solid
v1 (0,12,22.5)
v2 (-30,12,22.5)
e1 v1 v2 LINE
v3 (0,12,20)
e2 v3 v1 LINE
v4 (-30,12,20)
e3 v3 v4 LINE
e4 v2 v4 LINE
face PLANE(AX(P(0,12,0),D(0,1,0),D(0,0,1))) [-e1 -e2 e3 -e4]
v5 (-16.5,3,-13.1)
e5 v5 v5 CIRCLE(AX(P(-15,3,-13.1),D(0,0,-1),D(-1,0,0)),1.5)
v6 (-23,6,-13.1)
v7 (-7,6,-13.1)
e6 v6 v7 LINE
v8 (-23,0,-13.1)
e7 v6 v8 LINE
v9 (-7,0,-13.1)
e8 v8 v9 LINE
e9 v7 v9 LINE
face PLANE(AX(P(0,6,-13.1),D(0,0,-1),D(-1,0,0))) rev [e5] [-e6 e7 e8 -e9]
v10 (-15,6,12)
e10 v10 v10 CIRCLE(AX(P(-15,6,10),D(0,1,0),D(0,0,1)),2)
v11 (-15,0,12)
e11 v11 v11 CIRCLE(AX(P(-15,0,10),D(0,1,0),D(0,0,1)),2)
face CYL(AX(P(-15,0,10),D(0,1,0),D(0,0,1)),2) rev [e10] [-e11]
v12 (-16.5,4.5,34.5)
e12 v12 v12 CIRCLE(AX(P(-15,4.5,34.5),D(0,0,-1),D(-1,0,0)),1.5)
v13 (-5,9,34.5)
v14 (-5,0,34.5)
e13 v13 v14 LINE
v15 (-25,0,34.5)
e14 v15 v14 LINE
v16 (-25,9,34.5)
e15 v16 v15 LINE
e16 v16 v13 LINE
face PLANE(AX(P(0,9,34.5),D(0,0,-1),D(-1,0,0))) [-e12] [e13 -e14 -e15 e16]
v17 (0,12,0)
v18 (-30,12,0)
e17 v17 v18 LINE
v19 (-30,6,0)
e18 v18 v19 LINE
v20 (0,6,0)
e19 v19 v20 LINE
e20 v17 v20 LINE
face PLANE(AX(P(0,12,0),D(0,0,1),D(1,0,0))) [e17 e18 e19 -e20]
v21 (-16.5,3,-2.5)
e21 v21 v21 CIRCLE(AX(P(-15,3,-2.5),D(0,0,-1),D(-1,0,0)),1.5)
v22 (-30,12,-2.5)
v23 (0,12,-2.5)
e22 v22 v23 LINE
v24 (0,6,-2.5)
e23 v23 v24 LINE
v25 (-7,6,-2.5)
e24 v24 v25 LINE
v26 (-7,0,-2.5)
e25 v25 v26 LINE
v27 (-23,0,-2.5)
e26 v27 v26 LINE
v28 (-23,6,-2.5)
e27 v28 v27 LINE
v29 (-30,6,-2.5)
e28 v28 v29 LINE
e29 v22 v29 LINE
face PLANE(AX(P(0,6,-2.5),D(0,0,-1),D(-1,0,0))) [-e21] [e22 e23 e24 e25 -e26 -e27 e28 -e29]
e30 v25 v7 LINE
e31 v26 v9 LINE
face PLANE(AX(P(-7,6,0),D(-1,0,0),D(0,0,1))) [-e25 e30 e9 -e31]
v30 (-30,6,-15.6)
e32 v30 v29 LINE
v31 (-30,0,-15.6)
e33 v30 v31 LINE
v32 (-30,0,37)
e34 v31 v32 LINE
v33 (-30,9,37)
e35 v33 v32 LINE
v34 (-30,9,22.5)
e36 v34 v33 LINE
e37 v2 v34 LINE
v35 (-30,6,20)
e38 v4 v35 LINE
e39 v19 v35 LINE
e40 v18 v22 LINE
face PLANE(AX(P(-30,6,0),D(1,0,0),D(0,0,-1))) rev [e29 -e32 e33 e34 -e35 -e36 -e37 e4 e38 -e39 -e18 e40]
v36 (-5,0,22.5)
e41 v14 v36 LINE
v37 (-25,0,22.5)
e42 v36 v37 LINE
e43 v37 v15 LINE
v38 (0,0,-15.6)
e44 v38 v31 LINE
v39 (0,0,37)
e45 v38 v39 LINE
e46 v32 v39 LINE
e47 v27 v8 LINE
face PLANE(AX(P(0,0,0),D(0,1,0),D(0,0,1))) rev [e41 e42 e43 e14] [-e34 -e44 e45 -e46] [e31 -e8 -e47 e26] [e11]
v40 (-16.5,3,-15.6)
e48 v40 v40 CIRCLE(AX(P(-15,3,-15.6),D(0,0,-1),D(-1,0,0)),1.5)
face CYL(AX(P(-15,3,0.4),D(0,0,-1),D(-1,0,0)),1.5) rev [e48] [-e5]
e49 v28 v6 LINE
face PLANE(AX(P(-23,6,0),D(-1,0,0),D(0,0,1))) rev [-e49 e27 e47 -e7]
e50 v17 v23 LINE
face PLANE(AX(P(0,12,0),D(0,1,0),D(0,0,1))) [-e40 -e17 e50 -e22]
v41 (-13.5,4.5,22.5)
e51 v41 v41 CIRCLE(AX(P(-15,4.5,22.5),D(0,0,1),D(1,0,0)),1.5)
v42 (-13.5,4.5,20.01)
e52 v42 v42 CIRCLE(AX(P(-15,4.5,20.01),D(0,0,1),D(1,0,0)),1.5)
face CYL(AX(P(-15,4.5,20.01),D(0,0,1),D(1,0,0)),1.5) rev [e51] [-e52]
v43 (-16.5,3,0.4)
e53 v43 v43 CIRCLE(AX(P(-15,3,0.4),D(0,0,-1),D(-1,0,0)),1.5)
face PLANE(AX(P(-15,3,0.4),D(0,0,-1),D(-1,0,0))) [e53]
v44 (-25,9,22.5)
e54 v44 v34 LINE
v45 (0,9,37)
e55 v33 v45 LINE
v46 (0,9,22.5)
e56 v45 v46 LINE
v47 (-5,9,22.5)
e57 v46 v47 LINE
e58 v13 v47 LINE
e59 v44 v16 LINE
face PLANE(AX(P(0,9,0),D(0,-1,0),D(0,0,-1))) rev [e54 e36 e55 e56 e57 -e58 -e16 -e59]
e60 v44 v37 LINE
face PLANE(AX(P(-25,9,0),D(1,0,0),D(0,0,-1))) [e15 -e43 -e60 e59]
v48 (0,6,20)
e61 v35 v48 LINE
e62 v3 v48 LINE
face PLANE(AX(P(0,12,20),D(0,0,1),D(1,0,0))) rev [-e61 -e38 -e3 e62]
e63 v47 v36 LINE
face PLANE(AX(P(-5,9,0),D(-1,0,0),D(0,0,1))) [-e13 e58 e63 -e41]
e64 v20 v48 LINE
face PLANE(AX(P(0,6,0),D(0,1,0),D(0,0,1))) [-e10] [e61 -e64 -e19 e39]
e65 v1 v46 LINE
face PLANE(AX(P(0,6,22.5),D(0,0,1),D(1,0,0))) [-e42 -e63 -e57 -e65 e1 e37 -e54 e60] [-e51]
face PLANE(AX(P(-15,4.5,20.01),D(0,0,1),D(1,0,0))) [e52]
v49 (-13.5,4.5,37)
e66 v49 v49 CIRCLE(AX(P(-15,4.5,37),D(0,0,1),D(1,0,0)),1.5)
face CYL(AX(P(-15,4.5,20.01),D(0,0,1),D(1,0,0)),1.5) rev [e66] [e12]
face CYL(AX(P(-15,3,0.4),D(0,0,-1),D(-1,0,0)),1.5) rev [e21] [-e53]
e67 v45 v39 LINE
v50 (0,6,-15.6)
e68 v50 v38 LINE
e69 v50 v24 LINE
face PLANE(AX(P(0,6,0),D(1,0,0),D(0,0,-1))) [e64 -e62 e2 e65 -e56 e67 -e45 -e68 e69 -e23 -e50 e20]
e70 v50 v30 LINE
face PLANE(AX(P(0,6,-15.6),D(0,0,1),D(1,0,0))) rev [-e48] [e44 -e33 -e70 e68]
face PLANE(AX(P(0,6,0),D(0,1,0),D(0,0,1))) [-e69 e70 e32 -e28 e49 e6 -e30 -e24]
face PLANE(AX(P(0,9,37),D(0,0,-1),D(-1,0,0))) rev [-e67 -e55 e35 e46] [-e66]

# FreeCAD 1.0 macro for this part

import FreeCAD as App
import Part
import Sketcher


def add_polygon(sketch, points):
    """Adds a closed chain of lines whose ends are joined by coincident constraints."""
    first, n = sketch.GeometryCount, len(points)
    for a, b in zip(points, points[1:] + points[:1]):
        sketch.addGeometry(Part.LineSegment(App.Vector(*a, 0), App.Vector(*b, 0)), False)
    for i in range(n):
        sketch.addConstraint(Sketcher.Constraint("Coincident", first + i, 2, first + (i + 1) % n, 1))

doc = App.newDocument("Part")
body = doc.addObject("PartDesign::Body", "Body")

# Sketch on XZ plane
sketch1 = body.newObject("Sketcher::SketchObject", "Sketch")
sketch1.AttachmentSupport = (doc.getObject("XZ_Plane"), [""])
sketch1.MapMode = "FlatFace"
add_polygon(sketch1, [(-30, -16), (-30, 22), (0, 22), (0, -16)])  # lines 0-3
add_polygon(sketch1, [(-7, -2), (-23, -2), (-23, -13), (-7, -13)])  # lines 4-7
sketch1.addConstraint([
    Sketcher.Constraint("Vertical", 0),
    Sketcher.Constraint("Horizontal", 1),
    Sketcher.Constraint("Vertical", 2),
    Sketcher.Constraint("Horizontal", 3),
    Sketcher.Constraint("Horizontal", 4),
    Sketcher.Constraint("Vertical", 5),
    Sketcher.Constraint("Horizontal", 6),
    Sketcher.Constraint("Vertical", 7),
    Sketcher.Constraint("PointOnObject", 1, 2, -2),
    Sketcher.Constraint("DistanceX", 1, 1, 1, 2, 30.0),
    Sketcher.Constraint("DistanceX", 4, 2, 4, 1, 16.0),
    Sketcher.Constraint("DistanceY", 0, 1, 0, 2, 38.1),
    Sketcher.Constraint("DistanceY", 5, 2, 5, 1, 10.6),
    Sketcher.Constraint("DistanceX", 4, 2, -1, 1, 23.0),
    Sketcher.Constraint("DistanceY", 4, 2, 0, 2, 25.0),
    Sketcher.Constraint("DistanceY", -1, 1, 0, 2, 22.5),
])
pad1 = body.newObject("PartDesign::Pad", "Pad")
pad1.Profile = sketch1
pad1.Length = 6
pad1.Reversed = True

# Sketch on XZ plane
sketch2 = body.newObject("Sketcher::SketchObject", "Sketch001")
sketch2.AttachmentSupport = (doc.getObject("XZ_Plane"), [""])
sketch2.MapMode = "FlatFace"
add_polygon(sketch2, [(0, 0), (0, -2.5), (-30, -2.5), (-30, 0)])  # lines 0-3
add_polygon(sketch2, [(-30, 20), (-30, 22.5), (0, 22.5), (0, 20)])  # lines 4-7
sketch2.addConstraint([
    Sketcher.Constraint("Vertical", 0),
    Sketcher.Constraint("Horizontal", 1),
    Sketcher.Constraint("Vertical", 2),
    Sketcher.Constraint("Horizontal", 3),
    Sketcher.Constraint("Vertical", 4),
    Sketcher.Constraint("Horizontal", 5),
    Sketcher.Constraint("Vertical", 6),
    Sketcher.Constraint("Horizontal", 7),
    Sketcher.Constraint("Coincident", 3, 2, -1, 1),
    Sketcher.Constraint("PointOnObject", 5, 2, -2),
    Sketcher.Constraint("Vertical", 2, 2, 4, 2),
    Sketcher.Constraint("Equal", 2, 4),
    Sketcher.Constraint("DistanceX", 1, 2, 1, 1, 30.0),
    Sketcher.Constraint("DistanceY", 0, 2, 0, 1, 2.5),
    Sketcher.Constraint("DistanceY", -1, 1, 6, 2, 20.0),
])
pad2 = body.newObject("PartDesign::Pad", "Pad001")
pad2.Profile = sketch2
pad2.Length = 12
pad2.Reversed = True

# Sketch on XY plane
sketch3 = body.newObject("Sketcher::SketchObject", "Sketch002")
sketch3.AttachmentSupport = (doc.getObject("XY_Plane"), [""])
sketch3.MapMode = "FlatFace"
sketch3.AttachmentOffset = App.Placement(App.Vector(0, 0, -15.6), App.Rotation())
sketch3.addGeometry(Part.Circle(App.Vector(-15, 3, 0), App.Vector(0, 0, 1), 1.5), False)
sketch3.addConstraint([
    Sketcher.Constraint("Diameter", 0, 3.0),
    Sketcher.Constraint("DistanceX", 0, 3, -1, 1, 15.0),
    Sketcher.Constraint("DistanceY", -1, 1, 0, 3, 3.0),
])
pocket1 = body.newObject("PartDesign::Pocket", "Pocket")
pocket1.Profile = sketch3
pocket1.Length = 16
pocket1.Reversed = True

# Sketch on XZ plane
sketch4 = body.newObject("Sketcher::SketchObject", "Sketch003")
sketch4.AttachmentSupport = (doc.getObject("XZ_Plane"), [""])
sketch4.MapMode = "FlatFace"
sketch4.AttachmentOffset = App.Placement(App.Vector(0, 0, -6), App.Rotation())
sketch4.addGeometry(Part.Circle(App.Vector(-15, 10, 0), App.Vector(0, 0, 1), 2), False)
sketch4.addConstraint([
    Sketcher.Constraint("Diameter", 0, 4.0),
    Sketcher.Constraint("DistanceX", 0, 3, -1, 1, 15.0),
    Sketcher.Constraint("DistanceY", -1, 1, 0, 3, 10.0),
])
pocket2 = body.newObject("PartDesign::Pocket", "Pocket001")
pocket2.Profile = sketch4
pocket2.Type = "ThroughAll"
pocket2.Reversed = True

# Sketch on XZ plane
sketch5 = body.newObject("Sketcher::SketchObject", "Sketch004")
sketch5.AttachmentSupport = (doc.getObject("XZ_Plane"), [""])
sketch5.MapMode = "FlatFace"
add_polygon(sketch5, [(-30, 22), (-25, 22), (-25, 34), (-5, 34), (-5, 22), (0, 22), (0, 37), (-30, 37)])  # lines 0-7
sketch5.addConstraint([
    Sketcher.Constraint("Horizontal", 0),
    Sketcher.Constraint("Vertical", 1),
    Sketcher.Constraint("Horizontal", 2),
    Sketcher.Constraint("Vertical", 3),
    Sketcher.Constraint("Horizontal", 4),
    Sketcher.Constraint("Vertical", 5),
    Sketcher.Constraint("Horizontal", 6),
    Sketcher.Constraint("Vertical", 7),
    Sketcher.Constraint("PointOnObject", 4, 2, -2),
    Sketcher.Constraint("Horizontal", 0, 2, 3, 2),
    Sketcher.Constraint("Equal", 0, 4),
    Sketcher.Constraint("DistanceX", 0, 1, 0, 2, 5.0),
    Sketcher.Constraint("DistanceX", 2, 1, 2, 2, 20.0),
    Sketcher.Constraint("DistanceY", 1, 1, 1, 2, 12.0),
    Sketcher.Constraint("DistanceY", 5, 1, 5, 2, 14.5),
    Sketcher.Constraint("DistanceY", -1, 1, 5, 2, 37.0),
])
pad3 = body.newObject("PartDesign::Pad", "Pad002")
pad3.Profile = sketch5
pad3.Length = 9
pad3.Reversed = True

# Sketch on XY plane
sketch6 = body.newObject("Sketcher::SketchObject", "Sketch005")
sketch6.AttachmentSupport = (doc.getObject("XY_Plane"), [""])
sketch6.MapMode = "FlatFace"
sketch6.AttachmentOffset = App.Placement(App.Vector(0, 0, 37), App.Rotation())
sketch6.addGeometry(Part.Circle(App.Vector(-15, 4.5, 0), App.Vector(0, 0, 1), 1.5), False)
sketch6.addConstraint([
    Sketcher.Constraint("Diameter", 0, 3.0),
    Sketcher.Constraint("DistanceX", 0, 3, -1, 1, 15.0),
    Sketcher.Constraint("DistanceY", -1, 1, 0, 3, 4.5),
])
pocket3 = body.newObject("PartDesign::Pocket", "Pocket002")
pocket3.Profile = sketch6
pocket3.Length = 16.99

doc.recompute()
